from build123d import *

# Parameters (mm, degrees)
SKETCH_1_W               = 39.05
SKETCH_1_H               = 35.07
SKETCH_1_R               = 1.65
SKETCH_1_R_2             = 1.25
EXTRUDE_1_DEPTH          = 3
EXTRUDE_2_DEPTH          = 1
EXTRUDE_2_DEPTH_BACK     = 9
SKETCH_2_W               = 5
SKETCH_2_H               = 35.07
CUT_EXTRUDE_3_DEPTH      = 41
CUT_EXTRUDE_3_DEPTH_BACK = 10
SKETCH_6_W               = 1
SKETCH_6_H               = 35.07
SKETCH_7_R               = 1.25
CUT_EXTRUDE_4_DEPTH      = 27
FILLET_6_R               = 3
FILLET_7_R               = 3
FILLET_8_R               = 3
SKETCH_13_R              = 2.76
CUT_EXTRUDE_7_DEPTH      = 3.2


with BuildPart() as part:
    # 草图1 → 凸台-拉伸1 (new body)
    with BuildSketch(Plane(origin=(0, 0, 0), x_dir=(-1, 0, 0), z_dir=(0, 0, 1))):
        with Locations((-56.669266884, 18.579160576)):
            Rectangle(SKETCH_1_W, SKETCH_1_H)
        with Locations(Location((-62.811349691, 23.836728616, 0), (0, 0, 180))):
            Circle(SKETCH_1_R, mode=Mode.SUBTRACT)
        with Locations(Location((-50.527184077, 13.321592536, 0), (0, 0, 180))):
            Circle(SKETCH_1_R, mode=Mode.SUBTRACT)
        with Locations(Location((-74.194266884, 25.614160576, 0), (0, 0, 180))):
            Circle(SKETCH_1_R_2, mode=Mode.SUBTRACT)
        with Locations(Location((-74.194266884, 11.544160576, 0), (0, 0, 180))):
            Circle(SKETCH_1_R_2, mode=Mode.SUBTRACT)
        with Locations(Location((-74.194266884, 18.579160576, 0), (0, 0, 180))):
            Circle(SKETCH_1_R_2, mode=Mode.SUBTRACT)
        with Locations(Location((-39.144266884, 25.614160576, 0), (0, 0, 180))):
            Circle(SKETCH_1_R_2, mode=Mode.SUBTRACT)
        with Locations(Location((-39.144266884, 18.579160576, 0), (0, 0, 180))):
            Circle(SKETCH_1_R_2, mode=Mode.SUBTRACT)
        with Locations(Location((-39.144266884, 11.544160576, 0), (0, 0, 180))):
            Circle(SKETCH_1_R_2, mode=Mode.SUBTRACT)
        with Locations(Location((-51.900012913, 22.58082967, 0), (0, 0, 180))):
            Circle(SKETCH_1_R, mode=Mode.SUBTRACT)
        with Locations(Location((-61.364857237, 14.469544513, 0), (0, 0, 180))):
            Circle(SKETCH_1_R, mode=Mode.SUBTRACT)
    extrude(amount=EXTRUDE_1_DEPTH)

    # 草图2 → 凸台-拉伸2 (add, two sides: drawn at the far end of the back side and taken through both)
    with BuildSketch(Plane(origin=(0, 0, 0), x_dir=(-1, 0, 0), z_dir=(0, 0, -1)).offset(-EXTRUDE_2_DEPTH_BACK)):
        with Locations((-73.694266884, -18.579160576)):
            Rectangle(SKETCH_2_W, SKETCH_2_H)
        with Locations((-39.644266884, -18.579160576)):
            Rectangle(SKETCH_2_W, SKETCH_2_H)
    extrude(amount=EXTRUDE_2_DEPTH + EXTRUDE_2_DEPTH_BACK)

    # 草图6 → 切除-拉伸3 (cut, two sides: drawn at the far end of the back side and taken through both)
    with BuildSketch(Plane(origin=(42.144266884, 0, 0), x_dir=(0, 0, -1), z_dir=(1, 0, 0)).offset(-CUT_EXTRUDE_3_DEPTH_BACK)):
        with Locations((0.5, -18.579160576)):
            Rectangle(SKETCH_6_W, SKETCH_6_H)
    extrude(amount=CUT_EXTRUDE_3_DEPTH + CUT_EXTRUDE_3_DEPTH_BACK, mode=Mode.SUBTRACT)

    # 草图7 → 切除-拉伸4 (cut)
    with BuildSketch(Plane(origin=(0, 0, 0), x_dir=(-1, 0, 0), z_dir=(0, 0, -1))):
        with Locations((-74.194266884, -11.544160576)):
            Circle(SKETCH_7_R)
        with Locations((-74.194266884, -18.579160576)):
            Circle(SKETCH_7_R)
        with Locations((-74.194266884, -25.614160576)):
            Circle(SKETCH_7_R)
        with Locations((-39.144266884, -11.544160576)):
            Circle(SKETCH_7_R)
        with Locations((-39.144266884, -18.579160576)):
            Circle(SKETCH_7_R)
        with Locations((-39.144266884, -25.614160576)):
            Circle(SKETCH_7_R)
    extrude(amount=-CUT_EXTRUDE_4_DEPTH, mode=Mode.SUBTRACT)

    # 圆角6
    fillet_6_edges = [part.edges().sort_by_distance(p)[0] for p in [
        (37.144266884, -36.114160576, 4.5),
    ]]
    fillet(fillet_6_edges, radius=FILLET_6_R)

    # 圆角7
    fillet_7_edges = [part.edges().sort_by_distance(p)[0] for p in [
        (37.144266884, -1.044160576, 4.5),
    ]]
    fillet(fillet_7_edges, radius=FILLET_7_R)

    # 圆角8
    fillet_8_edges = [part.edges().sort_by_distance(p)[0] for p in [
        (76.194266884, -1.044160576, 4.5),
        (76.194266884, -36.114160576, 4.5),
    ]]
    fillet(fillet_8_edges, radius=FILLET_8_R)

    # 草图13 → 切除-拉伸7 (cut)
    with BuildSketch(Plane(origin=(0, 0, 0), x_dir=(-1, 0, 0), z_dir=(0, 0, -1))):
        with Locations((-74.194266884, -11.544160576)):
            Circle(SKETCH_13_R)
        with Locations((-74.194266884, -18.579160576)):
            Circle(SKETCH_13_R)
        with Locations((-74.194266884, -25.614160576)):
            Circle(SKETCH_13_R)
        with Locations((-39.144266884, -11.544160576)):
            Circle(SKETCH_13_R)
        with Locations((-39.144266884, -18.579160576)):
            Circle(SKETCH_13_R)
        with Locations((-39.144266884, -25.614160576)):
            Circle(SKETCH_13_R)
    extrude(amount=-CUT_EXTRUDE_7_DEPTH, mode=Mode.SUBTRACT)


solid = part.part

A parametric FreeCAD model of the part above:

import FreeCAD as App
import Part
import Sketcher
from FreeCAD import Vector
Q = App.Units.Quantity


def edges_at(feature, points):
    """Names of the edges that pass closest to the given points."""
    edges = feature.Shape.Edges
    near = lambda p: min(range(len(edges)), key=lambda i: edges[i].distToShape(Part.Vertex(*p))[0])
    return sorted({f"Edge{near(p) + 1}" for p in points})

doc = App.newDocument("Part")
body = doc.addObject("PartDesign::Body", "Body")

sketch1 = doc.addObject("Sketcher::SketchObject", "Sketch")
body.addObject(sketch1)
sketch1.AttachmentSupport = (doc.XY_Plane, [""])
sketch1.MapMode = "FlatFace"
sketch1.addGeometry(Part.LineSegment(Vector(76.2, -36.1, 0), Vector(76.2, -1, 0)), False)
sketch1.addGeometry(Part.LineSegment(Vector(76.2, -1, 0), Vector(37.1, -1, 0)), False)
sketch1.addGeometry(Part.LineSegment(Vector(37.1, -1, 0), Vector(37.1, -36.1, 0)), False)
sketch1.addGeometry(Part.LineSegment(Vector(37.1, -36.1, 0), Vector(76.2, -36.1, 0)), False)
sketch1.addGeometry(Part.Circle(Vector(74.2, -11.5, 0), Vector(0, 0, 1), 1.2), False)
sketch1.addGeometry(Part.Circle(Vector(61.4, -14.5, 0), Vector(0, 0, 1), 1.6), False)
sketch1.addGeometry(Part.Circle(Vector(50.5, -13.3, 0), Vector(0, 0, 1), 1.6), False)
sketch1.addGeometry(Part.Circle(Vector(39.1, -11.5, 0), Vector(0, 0, 1), 1.2), False)
sketch1.addGeometry(Part.Circle(Vector(74.2, -18.6, 0), Vector(0, 0, 1), 1.2), False)
sketch1.addGeometry(Part.Circle(Vector(74.2, -25.6, 0), Vector(0, 0, 1), 1.2), False)
sketch1.addGeometry(Part.Circle(Vector(62.8, -23.8, 0), Vector(0, 0, 1), 1.6), False)
sketch1.addGeometry(Part.Circle(Vector(51.9, -22.6, 0), Vector(0, 0, 1), 1.6), False)
sketch1.addGeometry(Part.Circle(Vector(39.1, -18.6, 0), Vector(0, 0, 1), 1.2), False)
sketch1.addGeometry(Part.Circle(Vector(39.1, -25.6, 0), Vector(0, 0, 1), 1.2), False)
sketch1.addConstraint(Sketcher.Constraint("Coincident", 0, 2, 1, 1))
sketch1.addConstraint(Sketcher.Constraint("Coincident", 1, 2, 2, 1))
sketch1.addConstraint(Sketcher.Constraint("Coincident", 2, 2, 3, 1))
sketch1.addConstraint(Sketcher.Constraint("Coincident", 3, 2, 0, 1))
sketch1.addConstraint(Sketcher.Constraint("Vertical", 0))
sketch1.addConstraint(Sketcher.Constraint("Horizontal", 1))
sketch1.addConstraint(Sketcher.Constraint("Vertical", 2))
sketch1.addConstraint(Sketcher.Constraint("Horizontal", 3))
sketch1.addConstraint(Sketcher.Constraint("Equal", 5, 6))
sketch1.addConstraint(Sketcher.Constraint("Equal", 4, 7))
sketch1.addConstraint(Sketcher.Constraint("Equal", 7, 8))
sketch1.addConstraint(Sketcher.Constraint("Equal", 8, 9))
sketch1.addConstraint(Sketcher.Constraint("Equal", 6, 10))
sketch1.addConstraint(Sketcher.Constraint("Equal", 10, 11))
sketch1.addConstraint(Sketcher.Constraint("Equal", 9, 12))
sketch1.addConstraint(Sketcher.Constraint("Equal", 12, 13))
sketch1.addConstraint(Sketcher.Constraint("Horizontal", 4, 3, 7, 3))
sketch1.addConstraint(Sketcher.Constraint("Horizontal", 8, 3, 12, 3))
sketch1.addConstraint(Sketcher.Constraint("Horizontal", 9, 3, 13, 3))
sketch1.addConstraint(Sketcher.Constraint("Vertical", 4, 3, 8, 3))
sketch1.addConstraint(Sketcher.Constraint("Vertical", 8, 3, 9, 3))
sketch1.addConstraint(Sketcher.Constraint("Vertical", 7, 3, 12, 3))
sketch1.addConstraint(Sketcher.Constraint("Vertical", 12, 3, 13, 3))
sketch1.addConstraint(Sketcher.Constraint("Diameter", 4, Q("2.5 mm")))
sketch1.addConstraint(Sketcher.Constraint("Diameter", 5, Q("3.3 mm")))
sketch1.addConstraint(Sketcher.Constraint("DistanceX", 4, 3, 0, 2, Q("2 mm")))
sketch1.addConstraint(Sketcher.Constraint("DistanceX", 1, 2, 7, 3, Q("2 mm")))
sketch1.addConstraint(Sketcher.Constraint("DistanceX", 1, 2, 1, 1, Q("39.05 mm")))
sketch1.addConstraint(Sketcher.Constraint("DistanceY", 0, 1, 0, 2, Q("35.07 mm")))
sketch1.addConstraint(Sketcher.Constraint("DistanceY", 4, 3, 0, 2, Q("10.5 mm")))
sketch1.addConstraint(Sketcher.Constraint("DistanceY", 2, 2, 13, 3, Q("10.5 mm")))
sketch1.addConstraint(Sketcher.Constraint("DistanceY", 8, 3, 4, 3, Q("7.035 mm")))
sketch1.addConstraint(Sketcher.Constraint("DistanceY", 10, 3, 11, 3, Q("1.255899 mm")))
sketch1.addConstraint(Sketcher.Constraint("DistanceY", 4, 3, -1, 1, Q("11.544161 mm")))
sketch1.addConstraint(Sketcher.Constraint("DistanceX", -1, 1, 10, 3, Q("62.81135 mm")))
sketch1.addConstraint(Sketcher.Constraint("DistanceY", 10, 3, -1, 1, Q("23.836729 mm")))
sketch1.addConstraint(Sketcher.Constraint("DistanceX", 5, 3, 4, 3, Q("12.82941 mm")))
sketch1.addConstraint(Sketcher.Constraint("DistanceY", 5, 3, 6, 3, Q("1.147952 mm")))
sketch1.addConstraint(Sketcher.Constraint("DistanceY", 6, 3, 4, 3, Q("1.777432 mm")))
sketch1.addConstraint(Sketcher.Constraint("DistanceX", 6, 3, 11, 3, Q("1.372829 mm")))
sketch1.addConstraint(Sketcher.Constraint("DistanceX", -1, 1, 4, 3, Q("74.194267 mm")))
sketch1.addConstraint(Sketcher.Constraint("DistanceX", -1, 1, 6, 3, Q("50.527184 mm")))
pad1 = doc.addObject("PartDesign::Pad", "Pad")
body.addObject(pad1)
pad1.Profile = sketch1
pad1.Length = 3

sketch2 = doc.addObject("Sketcher::SketchObject", "Sketch001")
body.addObject(sketch2)
sketch2.AttachmentSupport = (doc.XY_Plane, [""])
sketch2.MapMode = "FlatFace"
sketch2.addGeometry(Part.LineSegment(Vector(76, -1, 0), Vector(76, -36, 0)), False)
sketch2.addGeometry(Part.LineSegment(Vector(76, -36, 0), Vector(71, -36, 0)), False)
sketch2.addGeometry(Part.LineSegment(Vector(71, -36, 0), Vector(71, -1, 0)), False)
sketch2.addGeometry(Part.LineSegment(Vector(71, -1, 0), Vector(76, -1, 0)), False)
sketch2.addGeometry(Part.LineSegment(Vector(42, -1, 0), Vector(42, -36, 0)), False)
sketch2.addGeometry(Part.LineSegment(Vector(42, -36, 0), Vector(37, -36, 0)), False)
sketch2.addGeometry(Part.LineSegment(Vector(37, -36, 0), Vector(37, -1, 0)), False)
sketch2.addGeometry(Part.LineSegment(Vector(37, -1, 0), Vector(42, -1, 0)), False)
sketch2.addConstraint(Sketcher.Constraint("Coincident", 0, 2, 1, 1))
sketch2.addConstraint(Sketcher.Constraint("Coincident", 1, 2, 2, 1))
sketch2.addConstraint(Sketcher.Constraint("Coincident", 2, 2, 3, 1))
sketch2.addConstraint(Sketcher.Constraint("Coincident", 3, 2, 0, 1))
sketch2.addConstraint(Sketcher.Constraint("Coincident", 4, 2, 5, 1))
sketch2.addConstraint(Sketcher.Constraint("Coincident", 5, 2, 6, 1))
sketch2.addConstraint(Sketcher.Constraint("Coincident", 6, 2, 7, 1))
sketch2.addConstraint(Sketcher.Constraint("Coincident", 7, 2, 4, 1))
sketch2.addConstraint(Sketcher.Constraint("Vertical", 0))
sketch2.addConstraint(Sketcher.Constraint("Horizontal", 1))
sketch2.addConstraint(Sketcher.Constraint("Vertical", 2))
sketch2.addConstraint(Sketcher.Constraint("Horizontal", 3))
sketch2.addConstraint(Sketcher.Constraint("Vertical", 4))
sketch2.addConstraint(Sketcher.Constraint("Horizontal", 5))
sketch2.addConstraint(Sketcher.Constraint("Vertical", 6))
sketch2.addConstraint(Sketcher.Constraint("Horizontal", 7))
sketch2.addConstraint(Sketcher.Constraint("Horizontal", 1, 2, 4, 2))
sketch2.addConstraint(Sketcher.Constraint("Horizontal", 3, 2, 6, 2))
sketch2.addConstraint(Sketcher.Constraint("Equal", 3, 5))
sketch2.addConstraint(Sketcher.Constraint("DistanceX", 1, 2, 1, 1, Q("5 mm")))
sketch2.addConstraint(Sketcher.Constraint("DistanceY", 0, 2, 0, 1, Q("35.07 mm")))
sketch2.addConstraint(Sketcher.Constraint("DistanceX", 4, 2, 1, 2, Q("29.05 mm")))
sketch2.addConstraint(Sketcher.Constraint("DistanceY", 0, 2, -1, 1, Q("36.114161 mm")))
sketch2.addConstraint(Sketcher.Constraint("DistanceX", -1, 1, 0, 2, Q("76.194267 mm")))
pad2 = doc.addObject("PartDesign::Pad", "Pad001")
body.addObject(pad2)
pad2.Profile = sketch2
pad2.Type = "TwoLengths"
pad2.Length = 1
pad2.Length2 = 9
pad2.Reversed = True

sketch3 = doc.addObject("Sketcher::SketchObject", "Sketch002")
body.addObject(sketch3)
sketch3.AttachmentSupport = (doc.YZ_Plane, [""])
sketch3.MapMode = "FlatFace"
sketch3.AttachmentOffset = App.Placement(Vector(0, 0, 42.144267), App.Rotation())
sketch3.addGeometry(Part.LineSegment(Vector(-1, 0, 0), Vector(-36.1, 0, 0)), False)
sketch3.addGeometry(Part.LineSegment(Vector(-36.1, 0, 0), Vector(-36.1, -1, 0)), False)
sketch3.addGeometry(Part.LineSegment(Vector(-36.1, -1, 0), Vector(-1, -1, 0)), False)
sketch3.addGeometry(Part.LineSegment(Vector(-1, -1, 0), Vector(-1, 0, 0)), False)
sketch3.addConstraint(Sketcher.Constraint("Coincident", 0, 2, 1, 1))
sketch3.addConstraint(Sketcher.Constraint("Coincident", 1, 2, 2, 1))
sketch3.addConstraint(Sketcher.Constraint("Coincident", 2, 2, 3, 1))
sketch3.addConstraint(Sketcher.Constraint("Coincident", 3, 2, 0, 1))
sketch3.addConstraint(Sketcher.Constraint("Horizontal", 0))
sketch3.addConstraint(Sketcher.Constraint("Vertical", 1))
sketch3.addConstraint(Sketcher.Constraint("Horizontal", 2))
sketch3.addConstraint(Sketcher.Constraint("Vertical", 3))
sketch3.addConstraint(Sketcher.Constraint("PointOnObject", 0, 2, -1))
sketch3.addConstraint(Sketcher.Constraint("DistanceY", 1, 2, 1, 1, Q("1 mm")))
sketch3.addConstraint(Sketcher.Constraint("DistanceX", 0, 2, 0, 1, Q("35.07 mm")))
sketch3.addConstraint(Sketcher.Constraint("DistanceX", 0, 2, -1, 1, Q("36.114161 mm")))
pocket1 = doc.addObject("PartDesign::Pocket", "Pocket")
body.addObject(pocket1)
pocket1.Profile = sketch3
pocket1.Type = "ThroughAll"
pocket1.Midplane = True

sketch4 = doc.addObject("Sketcher::SketchObject", "Sketch003")
body.addObject(sketch4)
sketch4.AttachmentSupport = (doc.XY_Plane, [""])
sketch4.MapMode = "FlatFace"
sketch4.addGeometry(Part.Circle(Vector(74.2, -11.5, 0), Vector(0, 0, 1), 1.2), False)
sketch4.addGeometry(Part.Circle(Vector(74.2, -18.6, 0), Vector(0, 0, 1), 1.2), False)
sketch4.addGeometry(Part.Circle(Vector(74.2, -25.6, 0), Vector(0, 0, 1), 1.2), False)
sketch4.addGeometry(Part.Circle(Vector(39.1, -11.5, 0), Vector(0, 0, 1), 1.2), False)
sketch4.addGeometry(Part.Circle(Vector(39.1, -18.6, 0), Vector(0, 0, 1), 1.2), False)
sketch4.addGeometry(Part.Circle(Vector(39.1, -25.6, 0), Vector(0, 0, 1), 1.2), False)
sketch4.addConstraint(Sketcher.Constraint("Equal", 0, 1))
sketch4.addConstraint(Sketcher.Constraint("Equal", 1, 2))
sketch4.addConstraint(Sketcher.Constraint("Equal", 2, 3))
sketch4.addConstraint(Sketcher.Constraint("Equal", 3, 4))
sketch4.addConstraint(Sketcher.Constraint("Equal", 4, 5))
sketch4.addConstraint(Sketcher.Constraint("Horizontal", 0, 3, 3, 3))
sketch4.addConstraint(Sketcher.Constraint("Horizontal", 1, 3, 4, 3))
sketch4.addConstraint(Sketcher.Constraint("Horizontal", 2, 3, 5, 3))
sketch4.addConstraint(Sketcher.Constraint("Vertical", 0, 3, 1, 3))
sketch4.addConstraint(Sketcher.Constraint("Vertical", 1, 3, 2, 3))
sketch4.addConstraint(Sketcher.Constraint("Vertical", 3, 3, 4, 3))
sketch4.addConstraint(Sketcher.Constraint("Vertical", 4, 3, 5, 3))
sketch4.addConstraint(Sketcher.Constraint("Diameter", 0, Q("2.5 mm")))
sketch4.addConstraint(Sketcher.Constraint("DistanceY", 2, 3, 0, 3, Q("14.07 mm")))
sketch4.addConstraint(Sketcher.Constraint("DistanceX", 3, 3, 0, 3, Q("35.05 mm")))
sketch4.addConstraint(Sketcher.Constraint("DistanceY", 1, 3, 0, 3, Q("7.035 mm")))
sketch4.addConstraint(Sketcher.Constraint("DistanceY", 0, 3, -1, 1, Q("11.544161 mm")))
sketch4.addConstraint(Sketcher.Constraint("DistanceX", -1, 1, 0, 3, Q("74.194267 mm")))
pocket2 = doc.addObject("PartDesign::Pocket", "Pocket001")
body.addObject(pocket2)
pocket2.Profile = sketch4
pocket2.Length = 27
pocket2.Reversed = True
doc.recompute()

fillet = doc.addObject("PartDesign::Fillet", "Fillet")
body.addObject(fillet)
fillet.Base = (pocket2, edges_at(pocket2, [(37.144, -36.114, 4.5)]))
fillet.Radius = 3
doc.recompute()

fillet2 = doc.addObject("PartDesign::Fillet", "Fillet001")
body.addObject(fillet2)
fillet2.Base = (fillet, edges_at(fillet, [(37.144, -1.044, 4.5)]))
fillet2.Radius = 3
doc.recompute()

fillet3 = doc.addObject("PartDesign::Fillet", "Fillet002")
body.addObject(fillet3)
fillet3.Base = (fillet2, edges_at(fillet2, [(76.194, -1.044, 4.5), (76.194, -36.114, 4.5)]))
fillet3.Radius = 3

sketch5 = doc.addObject("Sketcher::SketchObject", "Sketch004")
body.addObject(sketch5)
sketch5.AttachmentSupport = (doc.XY_Plane, [""])
sketch5.MapMode = "FlatFace"
sketch5.addGeometry(Part.Circle(Vector(74.2, -11.5, 0), Vector(0, 0, 1), 2.8), False)
sketch5.addGeometry(Part.Circle(Vector(74.2, -18.6, 0), Vector(0, 0, 1), 2.8), False)
sketch5.addGeometry(Part.Circle(Vector(74.2, -25.6, 0), Vector(0, 0, 1), 2.8), False)
sketch5.addGeometry(Part.Circle(Vector(39.1, -11.5, 0), Vector(0, 0, 1), 2.8), False)
sketch5.addGeometry(Part.Circle(Vector(39.1, -18.6, 0), Vector(0, 0, 1), 2.8), False)
sketch5.addGeometry(Part.Circle(Vector(39.1, -25.6, 0), Vector(0, 0, 1), 2.8), False)
sketch5.addConstraint(Sketcher.Constraint("Equal", 0, 1))
sketch5.addConstraint(Sketcher.Constraint("Equal", 1, 2))
sketch5.addConstraint(Sketcher.Constraint("Equal", 2, 3))
sketch5.addConstraint(Sketcher.Constraint("Equal", 3, 4))
sketch5.addConstraint(Sketcher.Constraint("Equal", 4, 5))
sketch5.addConstraint(Sketcher.Constraint("Horizontal", 0, 3, 3, 3))
sketch5.addConstraint(Sketcher.Constraint("Horizontal", 1, 3, 4, 3))
sketch5.addConstraint(Sketcher.Constraint("Horizontal", 2, 3, 5, 3))
sketch5.addConstraint(Sketcher.Constraint("Vertical", 0, 3, 1, 3))
sketch5.addConstraint(Sketcher.Constraint("Vertical", 1, 3, 2, 3))
sketch5.addConstraint(Sketcher.Constraint("Vertical", 3, 3, 4, 3))
sketch5.addConstraint(Sketcher.Constraint("Vertical", 4, 3, 5, 3))
sketch5.addConstraint(Sketcher.Constraint("Diameter", 0, Q("5.52 mm")))
sketch5.addConstraint(Sketcher.Constraint("DistanceY", 2, 3, 0, 3, Q("14.07 mm")))
sketch5.addConstraint(Sketcher.Constraint("DistanceX", 3, 3, 0, 3, Q("35.05 mm")))
sketch5.addConstraint(Sketcher.Constraint("DistanceY", 1, 3, 0, 3, Q("7.035 mm")))
sketch5.addConstraint(Sketcher.Constraint("DistanceY", 0, 3, -1, 1, Q("11.544161 mm")))
sketch5.addConstraint(Sketcher.Constraint("DistanceX", -1, 1, 0, 3, Q("74.194267 mm")))
pocket3 = doc.addObject("PartDesign::Pocket", "Pocket002")
body.addObject(pocket3)
pocket3.Profile = sketch5
pocket3.Length = 3.2
pocket3.Reversed = True

doc.recompute()
